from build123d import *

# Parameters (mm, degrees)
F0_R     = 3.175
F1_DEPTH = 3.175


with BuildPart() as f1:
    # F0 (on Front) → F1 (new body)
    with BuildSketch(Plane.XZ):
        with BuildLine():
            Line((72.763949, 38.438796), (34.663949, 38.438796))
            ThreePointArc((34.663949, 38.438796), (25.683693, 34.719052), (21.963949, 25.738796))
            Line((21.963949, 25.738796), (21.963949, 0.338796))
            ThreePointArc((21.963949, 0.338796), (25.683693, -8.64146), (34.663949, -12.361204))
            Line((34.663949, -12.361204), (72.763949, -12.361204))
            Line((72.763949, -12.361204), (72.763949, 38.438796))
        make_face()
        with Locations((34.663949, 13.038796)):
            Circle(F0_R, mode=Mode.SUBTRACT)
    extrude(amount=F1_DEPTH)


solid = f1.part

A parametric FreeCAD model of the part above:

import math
import FreeCAD as App
import Part
import Sketcher
from FreeCAD import Vector
Q = App.Units.Quantity

doc = App.newDocument("Part")
body = doc.addObject("PartDesign::Body", "Body")

# Sketch on XZ plane
sketch1 = body.newObject("Sketcher::SketchObject", "Sketch")
sketch1.AttachmentSupport = (doc.getObject("XZ_Plane"), [""])
sketch1.MapMode = "FlatFace"
sketch1.addGeometry(Part.LineSegment(Vector(72.763949, 38.438796, 0), Vector(34.663949, 38.438796, 0)), False)
sketch1.addGeometry(Part.ArcOfCircle(Part.Circle(Vector(34.663949, 25.738796, 0), Vector(0, 0, 1), 12.7), math.radians(90.000002), math.radians(179.999998)), False)
sketch1.addGeometry(Part.LineSegment(Vector(21.963949, 25.738796, 0), Vector(21.963949, 0.338796, 0)), False)
sketch1.addGeometry(Part.ArcOfCircle(Part.Circle(Vector(34.663949, 0.338796, 0), Vector(0, 0, 1), 12.7), math.radians(-179.999998), math.radians(-90.000002)), False)
sketch1.addGeometry(Part.LineSegment(Vector(34.663949, -12.361204, 0), Vector(72.763949, -12.361204, 0)), False)
sketch1.addGeometry(Part.LineSegment(Vector(72.763949, -12.361204, 0), Vector(72.763949, 38.438796, 0)), False)
sketch1.addGeometry(Part.Circle(Vector(34.663949, 13.038796, 0), Vector(0, 0, 1), 3.175), False)
sketch1.addConstraint(Sketcher.Constraint("Tangent", 0, 2, 1, 1))
sketch1.addConstraint(Sketcher.Constraint("Tangent", 1, 2, 2, 1))
sketch1.addConstraint(Sketcher.Constraint("Tangent", 2, 2, 3, 1))
sketch1.addConstraint(Sketcher.Constraint("Tangent", 3, 2, 4, 1))
sketch1.addConstraint(Sketcher.Constraint("Coincident", 4, 2, 5, 1))
sketch1.addConstraint(Sketcher.Constraint("Coincident", 5, 2, 0, 1))
sketch1.addConstraint(Sketcher.Constraint("Horizontal", 0))
sketch1.addConstraint(Sketcher.Constraint("Vertical", 2))
sketch1.addConstraint(Sketcher.Constraint("Horizontal", 4))
sketch1.addConstraint(Sketcher.Constraint("Vertical", 5))
sketch1.addConstraint(Sketcher.Constraint("Equal", 1, 3))
sketch1.addConstraint(Sketcher.Constraint("Vertical", 3, 3, 6, 3))
sketch1.addConstraint(Sketcher.Constraint("Radius", 1, Q("0.5 in")))
sketch1.addConstraint(Sketcher.Constraint("Diameter", 6, Q("0.25 in")))
sketch1.addConstraint(Sketcher.Constraint("DistanceY", 2, 2, 2, 1, Q("1 in")))
sketch1.addConstraint(Sketcher.Constraint("DistanceX", 0, 2, 0, 1, Q("1.5 in")))
sketch1.addConstraint(Sketcher.Constraint("DistanceY", 6, 3, 0, 2, Q("1 in")))
sketch1.addConstraint(Sketcher.Constraint("DistanceX", -1, 1, 1, 3, 34.663949))
sketch1.addConstraint(Sketcher.Constraint("DistanceY", -1, 1, 1, 3, 25.738796))
pad1 = body.newObject("PartDesign::Pad", "Pad")
pad1.Profile = sketch1
pad1.Length = Q("0.125 in")

doc.recompute()
